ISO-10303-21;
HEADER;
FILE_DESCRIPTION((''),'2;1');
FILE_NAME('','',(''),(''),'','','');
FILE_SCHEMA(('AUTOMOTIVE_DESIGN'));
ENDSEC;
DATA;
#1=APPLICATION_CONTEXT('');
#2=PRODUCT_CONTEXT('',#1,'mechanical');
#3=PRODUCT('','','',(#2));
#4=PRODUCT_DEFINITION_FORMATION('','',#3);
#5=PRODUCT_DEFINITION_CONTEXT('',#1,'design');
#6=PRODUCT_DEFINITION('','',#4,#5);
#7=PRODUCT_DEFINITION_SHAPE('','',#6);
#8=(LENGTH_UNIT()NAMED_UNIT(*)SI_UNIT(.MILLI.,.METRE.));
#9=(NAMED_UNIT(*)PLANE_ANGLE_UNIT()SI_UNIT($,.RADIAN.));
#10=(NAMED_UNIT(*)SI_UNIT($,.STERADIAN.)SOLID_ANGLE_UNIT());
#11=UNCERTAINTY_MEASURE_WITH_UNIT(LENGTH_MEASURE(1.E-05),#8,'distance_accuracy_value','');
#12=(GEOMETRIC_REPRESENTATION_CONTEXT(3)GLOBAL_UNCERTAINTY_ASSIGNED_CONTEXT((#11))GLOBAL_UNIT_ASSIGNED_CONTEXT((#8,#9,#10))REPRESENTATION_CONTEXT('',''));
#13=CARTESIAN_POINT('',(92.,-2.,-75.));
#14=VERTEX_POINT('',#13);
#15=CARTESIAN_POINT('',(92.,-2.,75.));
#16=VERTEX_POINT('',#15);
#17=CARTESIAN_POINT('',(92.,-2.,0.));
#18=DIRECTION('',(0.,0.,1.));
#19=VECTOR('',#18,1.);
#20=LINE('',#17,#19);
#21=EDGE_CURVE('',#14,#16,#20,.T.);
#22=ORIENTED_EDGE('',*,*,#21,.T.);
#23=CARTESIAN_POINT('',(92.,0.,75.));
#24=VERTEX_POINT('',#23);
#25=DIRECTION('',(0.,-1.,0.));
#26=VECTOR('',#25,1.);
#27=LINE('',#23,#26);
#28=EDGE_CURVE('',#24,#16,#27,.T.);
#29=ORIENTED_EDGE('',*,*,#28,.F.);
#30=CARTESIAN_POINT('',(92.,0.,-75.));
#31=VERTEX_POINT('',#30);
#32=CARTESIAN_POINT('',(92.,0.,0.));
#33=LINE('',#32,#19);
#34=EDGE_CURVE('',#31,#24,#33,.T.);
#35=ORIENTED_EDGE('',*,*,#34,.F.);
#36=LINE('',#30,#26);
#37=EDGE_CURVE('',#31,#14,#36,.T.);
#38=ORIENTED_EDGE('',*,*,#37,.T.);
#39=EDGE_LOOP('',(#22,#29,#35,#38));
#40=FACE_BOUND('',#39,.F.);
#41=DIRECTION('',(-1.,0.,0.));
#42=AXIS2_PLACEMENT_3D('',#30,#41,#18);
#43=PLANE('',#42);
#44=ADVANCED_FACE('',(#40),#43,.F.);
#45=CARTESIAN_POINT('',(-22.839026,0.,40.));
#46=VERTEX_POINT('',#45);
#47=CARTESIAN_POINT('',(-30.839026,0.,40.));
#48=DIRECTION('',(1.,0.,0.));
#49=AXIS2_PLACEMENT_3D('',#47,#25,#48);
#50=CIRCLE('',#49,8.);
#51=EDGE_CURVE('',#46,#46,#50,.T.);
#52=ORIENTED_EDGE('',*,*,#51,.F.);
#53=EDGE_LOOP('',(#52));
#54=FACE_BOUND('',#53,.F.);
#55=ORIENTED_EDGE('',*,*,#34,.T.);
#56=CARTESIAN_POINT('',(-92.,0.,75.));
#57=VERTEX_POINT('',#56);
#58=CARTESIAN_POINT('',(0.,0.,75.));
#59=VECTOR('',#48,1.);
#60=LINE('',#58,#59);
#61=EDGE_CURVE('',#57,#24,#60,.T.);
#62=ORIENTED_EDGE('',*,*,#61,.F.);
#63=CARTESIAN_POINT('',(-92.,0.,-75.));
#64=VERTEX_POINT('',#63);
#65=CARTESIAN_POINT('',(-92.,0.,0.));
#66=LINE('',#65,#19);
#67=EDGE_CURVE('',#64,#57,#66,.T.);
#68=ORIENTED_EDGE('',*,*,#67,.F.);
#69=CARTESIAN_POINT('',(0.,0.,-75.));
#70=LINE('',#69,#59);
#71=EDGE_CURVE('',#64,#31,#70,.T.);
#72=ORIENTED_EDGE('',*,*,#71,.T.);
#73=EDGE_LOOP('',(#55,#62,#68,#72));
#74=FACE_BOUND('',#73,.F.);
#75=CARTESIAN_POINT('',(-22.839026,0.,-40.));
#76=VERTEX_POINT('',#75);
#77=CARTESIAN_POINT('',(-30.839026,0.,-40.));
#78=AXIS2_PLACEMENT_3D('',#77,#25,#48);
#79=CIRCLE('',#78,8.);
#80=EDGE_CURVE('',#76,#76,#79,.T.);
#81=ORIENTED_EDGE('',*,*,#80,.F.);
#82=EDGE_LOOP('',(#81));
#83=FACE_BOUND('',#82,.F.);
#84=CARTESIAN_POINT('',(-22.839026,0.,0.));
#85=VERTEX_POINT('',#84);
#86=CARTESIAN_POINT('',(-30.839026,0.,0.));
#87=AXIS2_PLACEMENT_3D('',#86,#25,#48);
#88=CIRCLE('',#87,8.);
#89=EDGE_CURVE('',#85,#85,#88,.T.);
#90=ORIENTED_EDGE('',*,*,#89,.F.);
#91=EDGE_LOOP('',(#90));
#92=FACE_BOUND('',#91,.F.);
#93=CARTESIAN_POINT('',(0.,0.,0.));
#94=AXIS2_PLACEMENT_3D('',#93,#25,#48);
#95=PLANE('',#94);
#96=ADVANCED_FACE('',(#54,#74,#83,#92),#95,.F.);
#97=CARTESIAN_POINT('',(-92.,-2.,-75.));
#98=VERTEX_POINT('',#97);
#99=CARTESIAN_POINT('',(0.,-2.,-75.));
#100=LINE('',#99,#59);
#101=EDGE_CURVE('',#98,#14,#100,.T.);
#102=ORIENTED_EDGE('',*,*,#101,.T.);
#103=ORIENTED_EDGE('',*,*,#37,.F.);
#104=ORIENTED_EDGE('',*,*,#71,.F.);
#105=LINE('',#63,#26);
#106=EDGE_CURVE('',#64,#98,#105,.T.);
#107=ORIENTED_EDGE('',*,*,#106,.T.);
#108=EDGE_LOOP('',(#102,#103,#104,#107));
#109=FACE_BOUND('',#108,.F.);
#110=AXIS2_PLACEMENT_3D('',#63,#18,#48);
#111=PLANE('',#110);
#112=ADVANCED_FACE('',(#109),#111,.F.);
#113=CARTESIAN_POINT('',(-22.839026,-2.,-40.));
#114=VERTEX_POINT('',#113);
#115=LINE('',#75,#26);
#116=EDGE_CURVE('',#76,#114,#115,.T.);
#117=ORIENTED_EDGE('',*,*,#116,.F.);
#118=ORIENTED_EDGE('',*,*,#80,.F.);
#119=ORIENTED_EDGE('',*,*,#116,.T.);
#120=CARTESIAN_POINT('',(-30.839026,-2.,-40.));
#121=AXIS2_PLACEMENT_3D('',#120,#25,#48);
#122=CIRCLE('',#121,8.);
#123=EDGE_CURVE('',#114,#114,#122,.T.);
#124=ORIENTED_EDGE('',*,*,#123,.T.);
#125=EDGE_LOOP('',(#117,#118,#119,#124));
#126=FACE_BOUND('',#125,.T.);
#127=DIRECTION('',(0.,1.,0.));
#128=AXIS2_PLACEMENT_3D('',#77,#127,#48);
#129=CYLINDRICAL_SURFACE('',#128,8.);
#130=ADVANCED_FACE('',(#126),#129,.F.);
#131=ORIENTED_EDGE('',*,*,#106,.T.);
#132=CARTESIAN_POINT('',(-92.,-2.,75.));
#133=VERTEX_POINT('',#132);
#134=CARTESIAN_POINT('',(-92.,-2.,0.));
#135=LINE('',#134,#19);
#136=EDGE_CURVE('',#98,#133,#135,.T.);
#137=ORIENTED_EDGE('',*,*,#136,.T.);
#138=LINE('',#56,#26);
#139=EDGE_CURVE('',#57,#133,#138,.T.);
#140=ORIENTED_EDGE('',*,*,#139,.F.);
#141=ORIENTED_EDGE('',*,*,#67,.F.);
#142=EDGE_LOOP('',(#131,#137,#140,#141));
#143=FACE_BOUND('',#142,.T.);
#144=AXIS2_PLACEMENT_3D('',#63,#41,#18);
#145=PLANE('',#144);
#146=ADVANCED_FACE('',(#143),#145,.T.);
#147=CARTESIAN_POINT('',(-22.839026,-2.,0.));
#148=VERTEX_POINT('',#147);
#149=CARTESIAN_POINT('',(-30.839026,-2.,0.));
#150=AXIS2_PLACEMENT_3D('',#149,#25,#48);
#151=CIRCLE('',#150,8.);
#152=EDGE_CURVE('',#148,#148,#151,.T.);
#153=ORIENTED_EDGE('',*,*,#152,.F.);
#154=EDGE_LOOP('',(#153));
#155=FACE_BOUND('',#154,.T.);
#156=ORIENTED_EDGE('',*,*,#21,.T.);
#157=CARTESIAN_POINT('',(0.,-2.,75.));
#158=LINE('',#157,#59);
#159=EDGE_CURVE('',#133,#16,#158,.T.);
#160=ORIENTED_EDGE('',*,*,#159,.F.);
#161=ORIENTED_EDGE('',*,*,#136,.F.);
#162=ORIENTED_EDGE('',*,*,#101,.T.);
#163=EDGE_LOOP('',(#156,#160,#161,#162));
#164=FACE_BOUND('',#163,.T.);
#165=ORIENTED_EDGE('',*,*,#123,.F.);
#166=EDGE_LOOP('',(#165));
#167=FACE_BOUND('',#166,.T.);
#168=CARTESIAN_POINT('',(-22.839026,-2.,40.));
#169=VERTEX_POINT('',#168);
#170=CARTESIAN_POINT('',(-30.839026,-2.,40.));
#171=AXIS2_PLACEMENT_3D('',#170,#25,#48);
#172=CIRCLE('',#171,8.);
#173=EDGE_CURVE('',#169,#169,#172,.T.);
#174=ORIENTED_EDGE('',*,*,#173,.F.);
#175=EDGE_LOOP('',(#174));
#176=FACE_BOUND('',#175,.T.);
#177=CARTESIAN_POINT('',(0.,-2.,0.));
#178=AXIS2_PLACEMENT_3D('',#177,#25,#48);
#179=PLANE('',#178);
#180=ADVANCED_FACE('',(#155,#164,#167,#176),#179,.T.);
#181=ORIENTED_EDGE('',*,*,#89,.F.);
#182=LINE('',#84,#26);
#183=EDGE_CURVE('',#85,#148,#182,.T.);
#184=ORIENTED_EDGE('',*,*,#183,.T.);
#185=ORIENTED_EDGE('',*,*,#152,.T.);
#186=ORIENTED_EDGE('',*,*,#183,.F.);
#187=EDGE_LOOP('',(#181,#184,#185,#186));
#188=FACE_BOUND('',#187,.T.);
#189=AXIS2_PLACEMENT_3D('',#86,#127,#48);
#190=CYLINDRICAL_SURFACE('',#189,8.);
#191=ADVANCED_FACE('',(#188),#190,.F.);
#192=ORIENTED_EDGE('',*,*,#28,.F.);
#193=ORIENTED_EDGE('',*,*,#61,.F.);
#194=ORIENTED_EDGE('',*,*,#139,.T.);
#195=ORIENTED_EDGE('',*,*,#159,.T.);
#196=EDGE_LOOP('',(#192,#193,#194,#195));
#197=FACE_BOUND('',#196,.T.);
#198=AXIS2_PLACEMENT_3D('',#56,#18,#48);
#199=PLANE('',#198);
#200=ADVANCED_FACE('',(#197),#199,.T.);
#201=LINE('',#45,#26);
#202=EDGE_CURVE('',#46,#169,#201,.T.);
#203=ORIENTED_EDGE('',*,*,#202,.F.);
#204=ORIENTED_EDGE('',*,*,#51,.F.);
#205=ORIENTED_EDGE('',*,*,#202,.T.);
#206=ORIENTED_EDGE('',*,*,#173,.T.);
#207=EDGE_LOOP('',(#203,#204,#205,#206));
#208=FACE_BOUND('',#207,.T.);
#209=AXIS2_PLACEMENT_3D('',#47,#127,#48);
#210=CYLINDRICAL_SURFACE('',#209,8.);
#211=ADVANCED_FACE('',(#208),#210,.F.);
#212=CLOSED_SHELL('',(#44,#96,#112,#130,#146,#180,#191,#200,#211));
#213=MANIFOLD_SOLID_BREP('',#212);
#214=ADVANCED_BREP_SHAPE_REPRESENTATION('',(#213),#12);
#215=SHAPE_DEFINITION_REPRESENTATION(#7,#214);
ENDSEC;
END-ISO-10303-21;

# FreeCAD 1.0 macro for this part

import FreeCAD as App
import Part
import Sketcher
Q = App.Units.Quantity

doc = App.newDocument("Part")
body = doc.addObject("PartDesign::Body", "Body")

sketch1 = body.newObject("Sketcher::SketchObject", "Sketch")
sketch1.AttachmentSupport = (doc.getObject("XZ_Plane"), [""])
sketch1.MapMode = "FlatFace"
sketch1.addGeometry([
    Part.LineSegment(App.Vector(-92, 75, 0), App.Vector(-92, -75, 0)),
    Part.LineSegment(App.Vector(-92, -75, 0), App.Vector(92, -75, 0)),
    Part.LineSegment(App.Vector(92, -75, 0), App.Vector(92, 75, 0)),
    Part.LineSegment(App.Vector(92, 75, 0), App.Vector(-92, 75, 0)),
    Part.Circle(App.Vector(-31, -40, 0), App.Vector(0, 0, 1), 8),
    Part.Circle(App.Vector(-31, 0, 0), App.Vector(0, 0, 1), 8),
    Part.Circle(App.Vector(-31, 40, 0), App.Vector(0, 0, 1), 8),
], False)
sketch1.addConstraint([
    Sketcher.Constraint("Coincident", 0, 2, 1, 1),
    Sketcher.Constraint("Coincident", 1, 2, 2, 1),
    Sketcher.Constraint("Coincident", 2, 2, 3, 1),
    Sketcher.Constraint("Coincident", 3, 2, 0, 1),
    Sketcher.Constraint("Vertical", 0),
    Sketcher.Constraint("Horizontal", 1),
    Sketcher.Constraint("Vertical", 2),
    Sketcher.Constraint("Horizontal", 3),
    Sketcher.Constraint("Equal", 4, 5),
    Sketcher.Constraint("Equal", 5, 6),
    Sketcher.Constraint("Symmetric", 0, 2, 2, 2, -1, 1),
    Sketcher.Constraint("Symmetric", 4, 3, 6, 3, -1),
    Sketcher.Constraint("PointOnObject", 5, 3, -1),
    Sketcher.Constraint("Vertical", 4, 3, 5, 3),
    Sketcher.Constraint("Diameter", 4, Q("16 mm")),
    Sketcher.Constraint("DistanceX", 1, 1, 1, 2, Q("184 mm")),
    Sketcher.Constraint("DistanceY", 0, 2, 0, 1, Q("150 mm")),
    Sketcher.Constraint("DistanceY", 4, 3, -1, 1, Q("40 mm")),
    Sketcher.Constraint("DistanceX", 4, 3, -1, 1, Q("30.839026 mm")),
])
pad1 = body.newObject("PartDesign::Pad", "Pad")
pad1.Profile = sketch1
pad1.Length = 2

doc.recompute()
